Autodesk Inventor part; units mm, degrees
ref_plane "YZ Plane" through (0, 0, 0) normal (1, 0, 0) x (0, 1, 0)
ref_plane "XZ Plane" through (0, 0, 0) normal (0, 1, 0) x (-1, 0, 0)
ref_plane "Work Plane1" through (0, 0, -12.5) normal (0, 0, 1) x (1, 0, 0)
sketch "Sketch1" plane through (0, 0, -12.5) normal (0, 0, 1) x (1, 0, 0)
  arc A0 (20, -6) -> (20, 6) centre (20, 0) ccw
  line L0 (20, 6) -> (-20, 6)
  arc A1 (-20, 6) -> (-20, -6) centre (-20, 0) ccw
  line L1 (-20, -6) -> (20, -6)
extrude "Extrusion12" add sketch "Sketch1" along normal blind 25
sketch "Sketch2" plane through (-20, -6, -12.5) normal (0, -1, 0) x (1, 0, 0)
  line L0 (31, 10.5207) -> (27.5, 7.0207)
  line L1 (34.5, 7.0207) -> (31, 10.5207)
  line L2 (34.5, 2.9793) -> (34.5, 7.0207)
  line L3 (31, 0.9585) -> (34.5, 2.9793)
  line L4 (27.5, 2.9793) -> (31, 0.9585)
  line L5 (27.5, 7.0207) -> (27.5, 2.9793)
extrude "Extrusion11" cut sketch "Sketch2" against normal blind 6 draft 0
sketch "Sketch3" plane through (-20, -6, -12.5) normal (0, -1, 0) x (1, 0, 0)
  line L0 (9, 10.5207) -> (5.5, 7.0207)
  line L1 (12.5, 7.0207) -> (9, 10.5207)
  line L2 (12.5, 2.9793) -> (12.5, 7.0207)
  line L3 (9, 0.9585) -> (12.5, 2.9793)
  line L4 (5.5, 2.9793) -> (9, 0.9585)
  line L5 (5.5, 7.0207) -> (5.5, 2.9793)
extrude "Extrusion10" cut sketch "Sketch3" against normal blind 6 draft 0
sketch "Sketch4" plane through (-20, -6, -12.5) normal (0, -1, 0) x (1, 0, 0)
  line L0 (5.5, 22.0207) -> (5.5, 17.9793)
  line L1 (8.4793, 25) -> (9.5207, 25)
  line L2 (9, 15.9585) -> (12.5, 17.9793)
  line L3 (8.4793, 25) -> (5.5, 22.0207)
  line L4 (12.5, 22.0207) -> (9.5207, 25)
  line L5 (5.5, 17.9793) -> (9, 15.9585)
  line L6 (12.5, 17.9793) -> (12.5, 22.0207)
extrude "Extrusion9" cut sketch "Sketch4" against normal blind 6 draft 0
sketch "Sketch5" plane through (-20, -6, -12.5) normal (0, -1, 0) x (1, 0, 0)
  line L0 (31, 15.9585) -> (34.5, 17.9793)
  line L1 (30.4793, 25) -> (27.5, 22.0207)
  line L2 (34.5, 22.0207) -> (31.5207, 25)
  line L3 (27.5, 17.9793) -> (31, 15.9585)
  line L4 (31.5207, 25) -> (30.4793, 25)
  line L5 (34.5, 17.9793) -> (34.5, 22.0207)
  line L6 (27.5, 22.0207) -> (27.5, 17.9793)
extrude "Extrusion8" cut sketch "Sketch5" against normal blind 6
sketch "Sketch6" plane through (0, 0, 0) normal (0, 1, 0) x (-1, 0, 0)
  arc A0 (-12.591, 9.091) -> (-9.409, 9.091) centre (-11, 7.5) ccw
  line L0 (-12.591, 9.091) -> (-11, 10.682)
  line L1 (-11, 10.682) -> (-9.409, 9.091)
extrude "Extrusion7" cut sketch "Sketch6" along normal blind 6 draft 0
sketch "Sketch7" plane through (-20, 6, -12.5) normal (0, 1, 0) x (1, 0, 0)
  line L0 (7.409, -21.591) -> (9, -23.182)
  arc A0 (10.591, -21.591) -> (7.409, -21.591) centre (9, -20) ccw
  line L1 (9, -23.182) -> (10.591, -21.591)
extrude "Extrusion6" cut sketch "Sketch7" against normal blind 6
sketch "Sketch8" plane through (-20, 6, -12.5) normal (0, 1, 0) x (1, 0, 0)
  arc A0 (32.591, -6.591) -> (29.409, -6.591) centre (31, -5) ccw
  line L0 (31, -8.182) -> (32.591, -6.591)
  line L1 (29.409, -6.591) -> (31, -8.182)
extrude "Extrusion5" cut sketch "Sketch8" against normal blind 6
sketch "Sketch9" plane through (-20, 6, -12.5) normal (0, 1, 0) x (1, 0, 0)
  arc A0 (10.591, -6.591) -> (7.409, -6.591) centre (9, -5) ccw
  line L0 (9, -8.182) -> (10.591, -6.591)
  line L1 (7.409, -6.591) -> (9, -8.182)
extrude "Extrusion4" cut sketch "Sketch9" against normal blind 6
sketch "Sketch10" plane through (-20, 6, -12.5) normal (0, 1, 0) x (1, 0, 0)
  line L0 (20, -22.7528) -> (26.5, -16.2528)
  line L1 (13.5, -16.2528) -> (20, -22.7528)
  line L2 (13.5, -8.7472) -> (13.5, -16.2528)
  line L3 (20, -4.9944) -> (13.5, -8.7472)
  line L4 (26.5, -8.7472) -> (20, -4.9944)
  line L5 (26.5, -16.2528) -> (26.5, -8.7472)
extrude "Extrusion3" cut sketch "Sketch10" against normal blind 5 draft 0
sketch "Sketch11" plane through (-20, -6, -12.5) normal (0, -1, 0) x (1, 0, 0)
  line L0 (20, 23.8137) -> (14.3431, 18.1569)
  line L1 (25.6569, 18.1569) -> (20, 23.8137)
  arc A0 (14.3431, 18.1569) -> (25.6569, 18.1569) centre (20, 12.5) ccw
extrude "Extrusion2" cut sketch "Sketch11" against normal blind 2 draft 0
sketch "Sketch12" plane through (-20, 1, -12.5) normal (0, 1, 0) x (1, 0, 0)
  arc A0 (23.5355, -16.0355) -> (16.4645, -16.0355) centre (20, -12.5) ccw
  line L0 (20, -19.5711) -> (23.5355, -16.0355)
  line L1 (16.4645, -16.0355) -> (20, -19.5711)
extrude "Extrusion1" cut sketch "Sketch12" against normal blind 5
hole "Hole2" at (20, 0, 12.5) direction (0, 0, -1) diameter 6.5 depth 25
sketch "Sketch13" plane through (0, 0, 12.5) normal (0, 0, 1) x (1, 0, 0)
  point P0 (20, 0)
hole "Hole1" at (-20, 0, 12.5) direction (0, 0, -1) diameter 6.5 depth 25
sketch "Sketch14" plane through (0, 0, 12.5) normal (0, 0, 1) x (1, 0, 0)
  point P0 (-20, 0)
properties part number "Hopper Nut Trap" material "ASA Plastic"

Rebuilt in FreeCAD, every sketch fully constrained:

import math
import FreeCAD as App
import Part
import Sketcher
from FreeCAD import Vector
Q = App.Units.Quantity

doc = App.newDocument("Part")
body = doc.addObject("PartDesign::Body", "Body")

sketch1 = doc.addObject("Sketcher::SketchObject", "Sketch")
body.addObject(sketch1)
sketch1.AttachmentSupport = (doc.XY_Plane, [""])
sketch1.MapMode = "FlatFace"
sketch1.AttachmentOffset = App.Placement(Vector(0, 0, -12.5), App.Rotation())
sketch1.addGeometry([
    Part.LineSegment(Vector(-20, -6, 0), Vector(20, -6, 0)),
    Part.ArcOfCircle(Part.Circle(Vector(20, 0, 0), Vector(0, 0, 1), 6), math.radians(-90), math.radians(90)),
    Part.LineSegment(Vector(20, 6, 0), Vector(-20, 6, 0)),
    Part.ArcOfCircle(Part.Circle(Vector(-20, 0, 0), Vector(0, 0, 1), 6), math.radians(90), math.radians(270)),
], False)
sketch1.addConstraint([
    Sketcher.Constraint("Tangent", 0, 2, 1, 1),
    Sketcher.Constraint("Tangent", 1, 2, 2, 1),
    Sketcher.Constraint("Tangent", 2, 2, 3, 1),
    Sketcher.Constraint("Tangent", 3, 2, 0, 1),
    Sketcher.Constraint("Horizontal", 0),
    Sketcher.Constraint("Horizontal", 2),
    Sketcher.Constraint("Symmetric", 1, 3, 3, 3, -1, 1),
    Sketcher.Constraint("Radius", 1, 6.0),
    Sketcher.Constraint("DistanceX", 0, 1, 0, 2, 40.0),
])
pad1 = doc.addObject("PartDesign::Pad", "Pad")
body.addObject(pad1)
pad1.Profile = sketch1
pad1.Length = 25

sketch2 = doc.addObject("Sketcher::SketchObject", "Sketch001")
body.addObject(sketch2)
sketch2.AttachmentSupport = (doc.XZ_Plane, [""])
sketch2.MapMode = "FlatFace"
sketch2.AttachmentOffset = App.Placement(Vector(0, 0, 6), App.Rotation())
sketch2.addGeometry([
    Part.LineSegment(Vector(14.5, -5.5, 0), Vector(11, -2, 0)),
    Part.LineSegment(Vector(11, -2, 0), Vector(7.5, -5.5, 0)),
    Part.LineSegment(Vector(7.5, -5.5, 0), Vector(7.5, -9.5, 0)),
    Part.LineSegment(Vector(7.5, -9.5, 0), Vector(11, -11.5, 0)),
    Part.LineSegment(Vector(11, -11.5, 0), Vector(14.5, -9.5, 0)),
    Part.LineSegment(Vector(14.5, -9.5, 0), Vector(14.5, -5.5, 0)),
], False)
sketch2.addConstraint([
    Sketcher.Constraint("Coincident", 0, 2, 1, 1),
    Sketcher.Constraint("Coincident", 1, 2, 2, 1),
    Sketcher.Constraint("Coincident", 2, 2, 3, 1),
    Sketcher.Constraint("Coincident", 3, 2, 4, 1),
    Sketcher.Constraint("Coincident", 4, 2, 5, 1),
    Sketcher.Constraint("Coincident", 5, 2, 0, 1),
    Sketcher.Constraint("Vertical", 2),
    Sketcher.Constraint("Vertical", 5),
    Sketcher.Constraint("Perpendicular", 0, 1),
    Sketcher.Constraint("Horizontal", 2, 2, 4, 2),
    Sketcher.Constraint("Horizontal", 1, 2, 5, 2),
    Sketcher.Constraint("Vertical", 0, 2, 3, 2),
    Sketcher.Constraint("Equal", 0, 1),
    Sketcher.Constraint("Angle", 3, Q("-30.001 deg")),
    Sketcher.Constraint("DistanceX", -1, 1, 0, 2, 11.0),
    Sketcher.Constraint("DistanceX", 2, 2, 4, 2, 7.0),
    Sketcher.Constraint("DistanceY", 2, 2, 2, 1, 4.0414),
    Sketcher.Constraint("DistanceY", 0, 2, -1, 1, 1.9793),
])
pocket1 = doc.addObject("PartDesign::Pocket", "Pocket")
body.addObject(pocket1)
pocket1.Profile = sketch2
pocket1.Length = 6

sketch3 = doc.addObject("Sketcher::SketchObject", "Sketch002")
body.addObject(sketch3)
sketch3.AttachmentSupport = (doc.XZ_Plane, [""])
sketch3.MapMode = "FlatFace"
sketch3.AttachmentOffset = App.Placement(Vector(0, 0, 6), App.Rotation())
sketch3.addGeometry([
    Part.LineSegment(Vector(-7.5, -5.5, 0), Vector(-11, -2, 0)),
    Part.LineSegment(Vector(-11, -2, 0), Vector(-14.5, -5.5, 0)),
    Part.LineSegment(Vector(-14.5, -5.5, 0), Vector(-14.5, -9.5, 0)),
    Part.LineSegment(Vector(-14.5, -9.5, 0), Vector(-11, -11.5, 0)),
    Part.LineSegment(Vector(-11, -11.5, 0), Vector(-7.5, -9.5, 0)),
    Part.LineSegment(Vector(-7.5, -9.5, 0), Vector(-7.5, -5.5, 0)),
], False)
sketch3.addConstraint([
    Sketcher.Constraint("Coincident", 0, 2, 1, 1),
    Sketcher.Constraint("Coincident", 1, 2, 2, 1),
    Sketcher.Constraint("Coincident", 2, 2, 3, 1),
    Sketcher.Constraint("Coincident", 3, 2, 4, 1),
    Sketcher.Constraint("Coincident", 4, 2, 5, 1),
    Sketcher.Constraint("Coincident", 5, 2, 0, 1),
    Sketcher.Constraint("Vertical", 2),
    Sketcher.Constraint("Vertical", 5),
    Sketcher.Constraint("Perpendicular", 0, 1),
    Sketcher.Constraint("Horizontal", 2, 2, 4, 2),
    Sketcher.Constraint("Horizontal", 1, 2, 5, 2),
    Sketcher.Constraint("Vertical", 0, 2, 3, 2),
    Sketcher.Constraint("Equal", 0, 1),
    Sketcher.Constraint("Angle", 3, Q("-30.001 deg")),
    Sketcher.Constraint("DistanceX", 0, 2, -1, 1, 11.0),
    Sketcher.Constraint("DistanceX", 2, 2, 4, 2, 7.0),
    Sketcher.Constraint("DistanceY", 2, 2, 2, 1, 4.0414),
    Sketcher.Constraint("DistanceY", 0, 2, -1, 1, 1.9793),
])
pocket2 = doc.addObject("PartDesign::Pocket", "Pocket001")
body.addObject(pocket2)
pocket2.Profile = sketch3
pocket2.Length = 6

sketch4 = doc.addObject("Sketcher::SketchObject", "Sketch003")
body.addObject(sketch4)
sketch4.AttachmentSupport = (doc.XZ_Plane, [""])
sketch4.MapMode = "FlatFace"
sketch4.AttachmentOffset = App.Placement(Vector(0, 0, 6), App.Rotation())
sketch4.addGeometry([
    Part.LineSegment(Vector(-11.5, 12.5, 0), Vector(-14.5, 9.5, 0)),
    Part.LineSegment(Vector(-14.5, 9.5, 0), Vector(-14.5, 5.5, 0)),
    Part.LineSegment(Vector(-14.5, 5.5, 0), Vector(-11, 3.5, 0)),
    Part.LineSegment(Vector(-11, 3.5, 0), Vector(-7.5, 5.5, 0)),
    Part.LineSegment(Vector(-7.5, 5.5, 0), Vector(-7.5, 9.5, 0)),
    Part.LineSegment(Vector(-7.5, 9.5, 0), Vector(-10.5, 12.5, 0)),
    Part.LineSegment(Vector(-10.5, 12.5, 0), Vector(-11.5, 12.5, 0)),
], False)
sketch4.addConstraint([
    Sketcher.Constraint("Coincident", 0, 2, 1, 1),
    Sketcher.Constraint("Coincident", 1, 2, 2, 1),
    Sketcher.Constraint("Coincident", 2, 2, 3, 1),
    Sketcher.Constraint("Coincident", 3, 2, 4, 1),
    Sketcher.Constraint("Coincident", 4, 2, 5, 1),
    Sketcher.Constraint("Coincident", 5, 2, 6, 1),
    Sketcher.Constraint("Coincident", 6, 2, 0, 1),
    Sketcher.Constraint("Vertical", 1),
    Sketcher.Constraint("Vertical", 4),
    Sketcher.Constraint("Horizontal", 6),
    Sketcher.Constraint("Perpendicular", 0, 5),
    Sketcher.Constraint("Horizontal", 1, 2, 3, 2),
    Sketcher.Constraint("Horizontal", 0, 2, 4, 2),
    Sketcher.Constraint("Equal", 2, 3),
    Sketcher.Constraint("Equal", 0, 5),
    Sketcher.Constraint("Angle", 2, Q("-30.001 deg")),
    Sketcher.Constraint("DistanceX", 2, 2, -1, 1, 11.0),
    Sketcher.Constraint("DistanceX", 1, 2, 3, 2, 7.0),
    Sketcher.Constraint("DistanceY", -1, 1, 5, 2, 12.5),
    Sketcher.Constraint("DistanceX", 6, 2, 6, 1, 1.0414),
    Sketcher.Constraint("DistanceY", 1, 2, 1, 1, 4.0414),
])
pocket3 = doc.addObject("PartDesign::Pocket", "Pocket002")
body.addObject(pocket3)
pocket3.Profile = sketch4
pocket3.Length = 6

sketch5 = doc.addObject("Sketcher::SketchObject", "Sketch004")
body.addObject(sketch5)
sketch5.AttachmentSupport = (doc.XZ_Plane, [""])
sketch5.MapMode = "FlatFace"
sketch5.AttachmentOffset = App.Placement(Vector(0, 0, 6), App.Rotation())
sketch5.addGeometry([
    Part.LineSegment(Vector(7.5, 5.5, 0), Vector(11, 3.5, 0)),
    Part.LineSegment(Vector(11, 3.5, 0), Vector(14.5, 5.5, 0)),
    Part.LineSegment(Vector(14.5, 5.5, 0), Vector(14.5, 9.5, 0)),
    Part.LineSegment(Vector(14.5, 9.5, 0), Vector(11.5, 12.5, 0)),
    Part.LineSegment(Vector(11.5, 12.5, 0), Vector(10.5, 12.5, 0)),
    Part.LineSegment(Vector(10.5, 12.5, 0), Vector(7.5, 9.5, 0)),
    Part.LineSegment(Vector(7.5, 9.5, 0), Vector(7.5, 5.5, 0)),
], False)
sketch5.addConstraint([
    Sketcher.Constraint("Coincident", 0, 2, 1, 1),
    Sketcher.Constraint("Coincident", 1, 2, 2, 1),
    Sketcher.Constraint("Coincident", 2, 2, 3, 1),
    Sketcher.Constraint("Coincident", 3, 2, 4, 1),
    Sketcher.Constraint("Coincident", 4, 2, 5, 1),
    Sketcher.Constraint("Coincident", 5, 2, 6, 1),
    Sketcher.Constraint("Coincident", 6, 2, 0, 1),
    Sketcher.Constraint("Vertical", 2),
    Sketcher.Constraint("Horizontal", 4),
    Sketcher.Constraint("Vertical", 6),
    Sketcher.Constraint("Perpendicular", 3, 5),
    Sketcher.Constraint("Horizontal", 2, 2, 5, 2),
    Sketcher.Constraint("Horizontal", 1, 2, 6, 2),
    Sketcher.Constraint("Equal", 0, 1),
    Sketcher.Constraint("Equal", 3, 5),
    Sketcher.Constraint("Angle", 0, Q("-30.001 deg")),
    Sketcher.Constraint("DistanceX", -1, 1, 0, 2, 11.0),
    Sketcher.Constraint("DistanceX", 5, 2, 2, 2, 7.0),
    Sketcher.Constraint("DistanceY", -1, 1, 3, 2, 12.5),
    Sketcher.Constraint("DistanceX", 4, 2, 4, 1, 1.0414),
    Sketcher.Constraint("DistanceY", 2, 1, 2, 2, 4.0414),
])
pocket4 = doc.addObject("PartDesign::Pocket", "Pocket003")
body.addObject(pocket4)
pocket4.Profile = sketch5
pocket4.Length = 6

sketch6 = doc.addObject("Sketcher::SketchObject", "Sketch005")
body.addObject(sketch6)
sketch6.AttachmentSupport = (doc.XZ_Plane, [""])
sketch6.MapMode = "FlatFace"
sketch6.addGeometry([
    Part.LineSegment(Vector(11, 10.7, 0), Vector(12.6, 9.1, 0)),
    Part.ArcOfCircle(Part.Circle(Vector(11, 7.5, 0), Vector(0, 0, 1), 2.3), math.radians(135), math.radians(405)),
    Part.LineSegment(Vector(9.4, 9.1, 0), Vector(11, 10.7, 0)),
], False)
sketch6.addConstraint([
    Sketcher.Constraint("Tangent", 0, 2, 1, 2),
    Sketcher.Constraint("Tangent", 1, 1, 2, 1),
    Sketcher.Constraint("Coincident", 2, 2, 0, 1),
    Sketcher.Constraint("Perpendicular", 0, 2),
    Sketcher.Constraint("Horizontal", 0, 2, 1, 1),
    Sketcher.Constraint("Radius", 1, 2.25),
    Sketcher.Constraint("DistanceX", -1, 1, 1, 3, 11.0),
    Sketcher.Constraint("DistanceY", -1, 1, 1, 3, 7.5),
])
pocket5 = doc.addObject("PartDesign::Pocket", "Pocket004")
body.addObject(pocket5)
pocket5.Profile = sketch6
pocket5.Length = 6

sketch7 = doc.addObject("Sketcher::SketchObject", "Sketch006")
body.addObject(sketch7)
sketch7.AttachmentSupport = (doc.XZ_Plane, [""])
sketch7.MapMode = "FlatFace"
sketch7.AttachmentOffset = App.Placement(Vector(0, 0, -6), App.Rotation())
sketch7.addGeometry([
    Part.ArcOfCircle(Part.Circle(Vector(-11, 7.5, 0), Vector(0, 0, 1), 2.3), math.radians(135), math.radians(405)),
    Part.LineSegment(Vector(-12.6, 9.1, 0), Vector(-11, 10.7, 0)),
    Part.LineSegment(Vector(-11, 10.7, 0), Vector(-9.4, 9.1, 0)),
], False)
sketch7.addConstraint([
    Sketcher.Constraint("Tangent", 0, 1, 1, 1),
    Sketcher.Constraint("Coincident", 1, 2, 2, 1),
    Sketcher.Constraint("Tangent", 2, 2, 0, 2),
    Sketcher.Constraint("Perpendicular", 1, 2),
    Sketcher.Constraint("Horizontal", 0, 1, 2, 2),
    Sketcher.Constraint("Radius", 0, 2.25),
    Sketcher.Constraint("DistanceX", 0, 3, -1, 1, 11.0),
    Sketcher.Constraint("DistanceY", -1, 1, 0, 3, 7.5),
])
pocket6 = doc.addObject("PartDesign::Pocket", "Pocket005")
body.addObject(pocket6)
pocket6.Profile = sketch7
pocket6.Length = 6
pocket6.Reversed = True

sketch8 = doc.addObject("Sketcher::SketchObject", "Sketch007")
body.addObject(sketch8)
sketch8.AttachmentSupport = (doc.XZ_Plane, [""])
sketch8.MapMode = "FlatFace"
sketch8.AttachmentOffset = App.Placement(Vector(0, 0, -6), App.Rotation())
sketch8.addGeometry([
    Part.LineSegment(Vector(11, -4.3, 0), Vector(12.6, -5.9, 0)),
    Part.ArcOfCircle(Part.Circle(Vector(11, -7.5, 0), Vector(0, 0, 1), 2.3), math.radians(135), math.radians(405)),
    Part.LineSegment(Vector(9.4, -5.9, 0), Vector(11, -4.3, 0)),
], False)
sketch8.addConstraint([
    Sketcher.Constraint("Tangent", 0, 2, 1, 2),
    Sketcher.Constraint("Tangent", 1, 1, 2, 1),
    Sketcher.Constraint("Coincident", 2, 2, 0, 1),
    Sketcher.Constraint("Perpendicular", 0, 2),
    Sketcher.Constraint("Horizontal", 0, 2, 1, 1),
    Sketcher.Constraint("Radius", 1, 2.25),
    Sketcher.Constraint("DistanceX", -1, 1, 1, 3, 11.0),
    Sketcher.Constraint("DistanceY", 1, 3, -1, 1, 7.5),
])
pocket7 = doc.addObject("PartDesign::Pocket", "Pocket006")
body.addObject(pocket7)
pocket7.Profile = sketch8
pocket7.Length = 6
pocket7.Reversed = True

sketch9 = doc.addObject("Sketcher::SketchObject", "Sketch008")
body.addObject(sketch9)
sketch9.AttachmentSupport = (doc.XZ_Plane, [""])
sketch9.MapMode = "FlatFace"
sketch9.AttachmentOffset = App.Placement(Vector(0, 0, -6), App.Rotation())
sketch9.addGeometry([
    Part.LineSegment(Vector(-11, -4.3, 0), Vector(-9.4, -5.9, 0)),
    Part.ArcOfCircle(Part.Circle(Vector(-11, -7.5, 0), Vector(0, 0, 1), 2.3), math.radians(135), math.radians(405)),
    Part.LineSegment(Vector(-12.6, -5.9, 0), Vector(-11, -4.3, 0)),
], False)
sketch9.addConstraint([
    Sketcher.Constraint("Tangent", 0, 2, 1, 2),
    Sketcher.Constraint("Tangent", 1, 1, 2, 1),
    Sketcher.Constraint("Coincident", 2, 2, 0, 1),
    Sketcher.Constraint("Perpendicular", 0, 2),
    Sketcher.Constraint("Horizontal", 0, 2, 1, 1),
    Sketcher.Constraint("Radius", 1, 2.25),
    Sketcher.Constraint("DistanceX", 1, 3, -1, 1, 11.0),
    Sketcher.Constraint("DistanceY", 1, 3, -1, 1, 7.5),
])
pocket8 = doc.addObject("PartDesign::Pocket", "Pocket007")
body.addObject(pocket8)
pocket8.Profile = sketch9
pocket8.Length = 6
pocket8.Reversed = True

sketch10 = doc.addObject("Sketcher::SketchObject", "Sketch009")
body.addObject(sketch10)
sketch10.AttachmentSupport = (doc.XZ_Plane, [""])
sketch10.MapMode = "FlatFace"
sketch10.AttachmentOffset = App.Placement(Vector(0, 0, -6), App.Rotation())
sketch10.addGeometry([
    Part.LineSegment(Vector(-6, 4, 0), Vector(0, 10, 0)),
    Part.LineSegment(Vector(0, 10, 0), Vector(6, 4, 0)),
    Part.LineSegment(Vector(6, 4, 0), Vector(6, -4, 0)),
    Part.LineSegment(Vector(6, -4, 0), Vector(0, -8, 0)),
    Part.LineSegment(Vector(0, -8, 0), Vector(-6, -4, 0)),
    Part.LineSegment(Vector(-6, -4, 0), Vector(-6, 4, 0)),
], False)
sketch10.addConstraint([
    Sketcher.Constraint("Coincident", 0, 2, 1, 1),
    Sketcher.Constraint("Coincident", 1, 2, 2, 1),
    Sketcher.Constraint("Coincident", 2, 2, 3, 1),
    Sketcher.Constraint("Coincident", 3, 2, 4, 1),
    Sketcher.Constraint("Coincident", 4, 2, 5, 1),
    Sketcher.Constraint("Coincident", 5, 2, 0, 1),
    Sketcher.Constraint("Vertical", 2),
    Sketcher.Constraint("Vertical", 5),
    Sketcher.Constraint("Symmetric", 1, 2, 4, 2, -1, 1),
    Sketcher.Constraint("PointOnObject", 0, 2, -2),
    Sketcher.Constraint("PointOnObject", 3, 2, -2),
    Sketcher.Constraint("Perpendicular", 0, 1),
    Sketcher.Constraint("Horizontal", 2, 2, 4, 2),
    Sketcher.Constraint("Horizontal", 1, 2, 5, 2),
    Sketcher.Constraint("Angle", 3, Q("-149.9998 deg")),
    Sketcher.Constraint("DistanceX", 4, 2, 2, 2, 13.0),
    Sketcher.Constraint("DistanceY", 2, 2, 2, 1, 7.5056),
])
pocket9 = doc.addObject("PartDesign::Pocket", "Pocket008")
body.addObject(pocket9)
pocket9.Profile = sketch10
pocket9.Length = 5
pocket9.Reversed = True

sketch11 = doc.addObject("Sketcher::SketchObject", "Sketch010")
body.addObject(sketch11)
sketch11.AttachmentSupport = (doc.XZ_Plane, [""])
sketch11.MapMode = "FlatFace"
sketch11.AttachmentOffset = App.Placement(Vector(0, 0, 6), App.Rotation())
sketch11.addGeometry([
    Part.LineSegment(Vector(6, 6, 0), Vector(0, 11, 0)),
    Part.LineSegment(Vector(0, 11, 0), Vector(-6, 6, 0)),
    Part.ArcOfCircle(Part.Circle(Vector(0, 0, 0), Vector(0, 0, 1), 8), math.radians(135), math.radians(405)),
], False)
sketch11.addConstraint([
    Sketcher.Constraint("Coincident", 0, 2, 1, 1),
    Sketcher.Constraint("Tangent", 1, 2, 2, 1),
    Sketcher.Constraint("Tangent", 2, 2, 0, 1),
    Sketcher.Constraint("Coincident", 2, 3, -1, 1),
    Sketcher.Constraint("PointOnObject", 0, 2, -2),
    Sketcher.Constraint("Perpendicular", 0, 1),
    Sketcher.Constraint("Radius", 2, 8.0),
])
pocket10 = doc.addObject("PartDesign::Pocket", "Pocket009")
body.addObject(pocket10)
pocket10.Profile = sketch11
pocket10.Length = 2

sketch12 = doc.addObject("Sketcher::SketchObject", "Sketch011")
body.addObject(sketch12)
sketch12.AttachmentSupport = (doc.XZ_Plane, [""])
sketch12.MapMode = "FlatFace"
sketch12.AttachmentOffset = App.Placement(Vector(0, 0, -1), App.Rotation())
sketch12.addGeometry([
    Part.LineSegment(Vector(0, 7.1, 0), Vector(3.5, 3.5, 0)),
    Part.ArcOfCircle(Part.Circle(Vector(0, 0, 0), Vector(0, 0, 1), 5), math.radians(135), math.radians(405)),
    Part.LineSegment(Vector(-3.5, 3.5, 0), Vector(0, 7.1, 0)),
], False)
sketch12.addConstraint([
    Sketcher.Constraint("Tangent", 0, 2, 1, 2),
    Sketcher.Constraint("Tangent", 1, 1, 2, 1),
    Sketcher.Constraint("Coincident", 2, 2, 0, 1),
    Sketcher.Constraint("Coincident", 1, 3, -1, 1),
    Sketcher.Constraint("PointOnObject", 2, 2, -2),
    Sketcher.Constraint("Perpendicular", 0, 2),
    Sketcher.Constraint("Radius", 1, 5.0),
])
pocket11 = doc.addObject("PartDesign::Pocket", "Pocket010")
body.addObject(pocket11)
pocket11.Profile = sketch12
pocket11.Length = 5
pocket11.Reversed = True

sketch13 = doc.addObject("Sketcher::SketchObject", "Sketch012")
body.addObject(sketch13)
sketch13.AttachmentSupport = (doc.XY_Plane, [""])
sketch13.MapMode = "FlatFace"
sketch13.AttachmentOffset = App.Placement(Vector(0, 0, 12.5), App.Rotation())
sketch13.addGeometry(Part.Circle(Vector(20, 0, 0), Vector(0, 0, 1), 3.2), False)
sketch13.addConstraint([
    Sketcher.Constraint("PointOnObject", 0, 3, -1),
    Sketcher.Constraint("Diameter", 0, 6.5),
    Sketcher.Constraint("DistanceX", -1, 1, 0, 3, 20.0),
])
doc.recompute()
hole = doc.addObject("PartDesign::Hole", "Hole")
body.addObject(hole)
hole.Profile = sketch13
hole.ThreadType = "None"
hole.Diameter = 6.5
hole.DepthType = "Dimension"
hole.Depth = 25
hole.DrillPoint = "Flat"

sketch14 = doc.addObject("Sketcher::SketchObject", "Sketch013")
body.addObject(sketch14)
sketch14.AttachmentSupport = (doc.XY_Plane, [""])
sketch14.MapMode = "FlatFace"
sketch14.AttachmentOffset = App.Placement(Vector(0, 0, 12.5), App.Rotation())
sketch14.addGeometry(Part.Circle(Vector(-20, 0, 0), Vector(0, 0, 1), 3.2), False)
sketch14.addConstraint([
    Sketcher.Constraint("PointOnObject", 0, 3, -1),
    Sketcher.Constraint("Diameter", 0, 6.5),
    Sketcher.Constraint("DistanceX", 0, 3, -1, 1, 20.0),
])
doc.recompute()
hole2 = doc.addObject("PartDesign::Hole", "Hole001")
body.addObject(hole2)
hole2.Profile = sketch14
hole2.ThreadType = "None"
hole2.Diameter = 6.5
hole2.DepthType = "Dimension"
hole2.Depth = 25
hole2.DrillPoint = "Flat"

doc.recompute()
